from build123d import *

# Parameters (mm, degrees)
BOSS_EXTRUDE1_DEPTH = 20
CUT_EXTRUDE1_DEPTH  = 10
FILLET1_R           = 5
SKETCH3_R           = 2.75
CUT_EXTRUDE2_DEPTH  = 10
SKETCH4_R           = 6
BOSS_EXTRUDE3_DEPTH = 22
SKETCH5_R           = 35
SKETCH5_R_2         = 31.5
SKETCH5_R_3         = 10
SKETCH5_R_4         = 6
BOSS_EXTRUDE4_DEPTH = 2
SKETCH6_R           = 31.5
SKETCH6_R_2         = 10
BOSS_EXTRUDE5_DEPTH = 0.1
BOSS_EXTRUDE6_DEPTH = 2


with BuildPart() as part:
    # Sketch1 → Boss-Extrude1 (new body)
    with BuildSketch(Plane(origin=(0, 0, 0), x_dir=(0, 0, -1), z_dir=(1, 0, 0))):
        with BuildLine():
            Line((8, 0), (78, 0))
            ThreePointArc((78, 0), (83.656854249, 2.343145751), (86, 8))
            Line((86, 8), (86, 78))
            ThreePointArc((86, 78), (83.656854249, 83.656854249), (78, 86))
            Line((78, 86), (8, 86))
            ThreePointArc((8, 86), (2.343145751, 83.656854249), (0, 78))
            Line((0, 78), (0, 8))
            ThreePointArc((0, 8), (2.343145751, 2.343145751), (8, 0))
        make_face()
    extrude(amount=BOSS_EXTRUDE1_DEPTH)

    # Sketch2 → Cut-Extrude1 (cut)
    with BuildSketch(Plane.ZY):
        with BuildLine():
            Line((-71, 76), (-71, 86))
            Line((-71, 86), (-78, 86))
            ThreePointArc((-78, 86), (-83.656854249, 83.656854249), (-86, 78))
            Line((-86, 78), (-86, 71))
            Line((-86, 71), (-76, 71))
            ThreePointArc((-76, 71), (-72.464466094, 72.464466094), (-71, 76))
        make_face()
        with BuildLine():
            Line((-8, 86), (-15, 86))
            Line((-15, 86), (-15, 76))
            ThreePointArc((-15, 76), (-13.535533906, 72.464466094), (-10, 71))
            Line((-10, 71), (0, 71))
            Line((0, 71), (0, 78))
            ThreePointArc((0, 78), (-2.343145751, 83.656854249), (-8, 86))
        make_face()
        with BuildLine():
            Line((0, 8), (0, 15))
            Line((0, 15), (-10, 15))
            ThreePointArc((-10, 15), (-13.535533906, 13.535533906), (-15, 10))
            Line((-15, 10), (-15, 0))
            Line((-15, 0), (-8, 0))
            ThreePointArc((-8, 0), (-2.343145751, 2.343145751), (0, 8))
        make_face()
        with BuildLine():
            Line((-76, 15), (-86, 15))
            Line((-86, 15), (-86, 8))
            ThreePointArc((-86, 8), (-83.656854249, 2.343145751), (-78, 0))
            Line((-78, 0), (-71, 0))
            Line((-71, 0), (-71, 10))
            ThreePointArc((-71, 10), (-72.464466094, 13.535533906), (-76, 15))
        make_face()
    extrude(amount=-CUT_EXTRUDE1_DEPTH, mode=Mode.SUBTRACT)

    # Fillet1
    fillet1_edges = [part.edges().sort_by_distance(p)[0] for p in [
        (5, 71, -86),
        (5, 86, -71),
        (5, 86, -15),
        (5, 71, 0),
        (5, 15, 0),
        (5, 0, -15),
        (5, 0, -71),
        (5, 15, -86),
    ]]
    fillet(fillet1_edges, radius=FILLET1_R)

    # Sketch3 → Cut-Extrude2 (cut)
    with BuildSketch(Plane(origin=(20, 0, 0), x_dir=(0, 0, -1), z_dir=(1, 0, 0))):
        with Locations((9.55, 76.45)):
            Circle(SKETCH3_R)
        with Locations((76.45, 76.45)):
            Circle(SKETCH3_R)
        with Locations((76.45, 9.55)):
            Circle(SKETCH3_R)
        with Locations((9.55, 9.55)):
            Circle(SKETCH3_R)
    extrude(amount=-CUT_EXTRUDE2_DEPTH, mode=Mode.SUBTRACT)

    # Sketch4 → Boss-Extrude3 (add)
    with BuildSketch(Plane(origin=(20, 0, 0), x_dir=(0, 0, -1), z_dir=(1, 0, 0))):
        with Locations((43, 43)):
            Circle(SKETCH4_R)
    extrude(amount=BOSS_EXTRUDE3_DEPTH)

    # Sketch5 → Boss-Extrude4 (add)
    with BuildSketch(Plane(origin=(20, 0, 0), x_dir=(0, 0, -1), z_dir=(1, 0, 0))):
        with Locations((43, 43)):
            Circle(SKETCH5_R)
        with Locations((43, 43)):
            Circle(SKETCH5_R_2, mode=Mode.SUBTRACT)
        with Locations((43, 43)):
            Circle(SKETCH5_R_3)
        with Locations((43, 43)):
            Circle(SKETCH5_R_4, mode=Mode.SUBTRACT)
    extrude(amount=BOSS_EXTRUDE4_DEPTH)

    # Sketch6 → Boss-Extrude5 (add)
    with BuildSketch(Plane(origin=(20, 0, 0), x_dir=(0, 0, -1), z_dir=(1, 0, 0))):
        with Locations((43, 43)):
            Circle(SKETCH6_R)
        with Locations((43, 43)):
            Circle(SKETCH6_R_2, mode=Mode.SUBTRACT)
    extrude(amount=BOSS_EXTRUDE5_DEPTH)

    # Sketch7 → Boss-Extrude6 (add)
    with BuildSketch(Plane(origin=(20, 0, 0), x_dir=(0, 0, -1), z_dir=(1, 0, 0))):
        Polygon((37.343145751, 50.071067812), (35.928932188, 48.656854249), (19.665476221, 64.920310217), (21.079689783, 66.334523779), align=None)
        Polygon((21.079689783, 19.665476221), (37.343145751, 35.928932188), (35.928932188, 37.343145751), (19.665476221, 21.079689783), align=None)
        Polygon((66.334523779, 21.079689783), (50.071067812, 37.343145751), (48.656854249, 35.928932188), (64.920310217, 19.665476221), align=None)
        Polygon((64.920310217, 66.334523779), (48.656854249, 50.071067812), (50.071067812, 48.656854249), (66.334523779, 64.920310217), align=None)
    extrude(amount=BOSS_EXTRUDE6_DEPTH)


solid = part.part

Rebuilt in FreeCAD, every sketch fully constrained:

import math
import FreeCAD as App
import Part
import Sketcher
Q = App.Units.Quantity


def edges_at(feature, points):
    """Names of the edges that pass closest to the given points."""
    edges = feature.Shape.Edges
    near = lambda p: min(range(len(edges)), key=lambda i: edges[i].distToShape(Part.Vertex(*p))[0])
    return sorted({f"Edge{near(p) + 1}" for p in points})


def add_polygon(sketch, points):
    """Adds a closed chain of lines whose ends are joined by coincident constraints."""
    first, n = sketch.GeometryCount, len(points)
    for a, b in zip(points, points[1:] + points[:1]):
        sketch.addGeometry(Part.LineSegment(App.Vector(*a, 0), App.Vector(*b, 0)), False)
    for i in range(n):
        sketch.addConstraint(Sketcher.Constraint("Coincident", first + i, 2, first + (i + 1) % n, 1))

doc = App.newDocument("Part")
body = doc.addObject("PartDesign::Body", "Body")

# Sketch on YZ plane
sketch1 = body.newObject("Sketcher::SketchObject", "Sketch")
sketch1.AttachmentSupport = (doc.getObject("YZ_Plane"), [""])
sketch1.MapMode = "FlatFace"
sketch1.addGeometry(Part.LineSegment(App.Vector(0, -8, 0), App.Vector(0, -78, 0)), False)
sketch1.addGeometry(Part.ArcOfCircle(Part.Circle(App.Vector(8, -78, 0), App.Vector(0, 0, 1), 8), math.radians(-180), math.radians(-90)), False)
sketch1.addGeometry(Part.LineSegment(App.Vector(8, -86, 0), App.Vector(78, -86, 0)), False)
sketch1.addGeometry(Part.ArcOfCircle(Part.Circle(App.Vector(78, -78, 0), App.Vector(0, 0, 1), 8), math.radians(-90), math.radians(0)), False)
sketch1.addGeometry(Part.LineSegment(App.Vector(86, -78, 0), App.Vector(86, -8, 0)), False)
sketch1.addGeometry(Part.ArcOfCircle(Part.Circle(App.Vector(78, -8, 0), App.Vector(0, 0, 1), 8), math.radians(0), math.radians(90)), False)
sketch1.addGeometry(Part.LineSegment(App.Vector(78, 0, 0), App.Vector(8, 0, 0)), False)
sketch1.addGeometry(Part.ArcOfCircle(Part.Circle(App.Vector(8, -8, 0), App.Vector(0, 0, 1), 8), math.radians(90), math.radians(180)), False)
sketch1.addConstraint(Sketcher.Constraint("Tangent", 0, 2, 1, 1))
sketch1.addConstraint(Sketcher.Constraint("Tangent", 1, 2, 2, 1))
sketch1.addConstraint(Sketcher.Constraint("Tangent", 2, 2, 3, 1))
sketch1.addConstraint(Sketcher.Constraint("Tangent", 3, 2, 4, 1))
sketch1.addConstraint(Sketcher.Constraint("Tangent", 4, 2, 5, 1))
sketch1.addConstraint(Sketcher.Constraint("Tangent", 5, 2, 6, 1))
sketch1.addConstraint(Sketcher.Constraint("Tangent", 6, 2, 7, 1))
sketch1.addConstraint(Sketcher.Constraint("Tangent", 7, 2, 0, 1))
sketch1.addConstraint(Sketcher.Constraint("Vertical", 0))
sketch1.addConstraint(Sketcher.Constraint("Horizontal", 2))
sketch1.addConstraint(Sketcher.Constraint("Vertical", 4))
sketch1.addConstraint(Sketcher.Constraint("Horizontal", 6))
sketch1.addConstraint(Sketcher.Constraint("Equal", 1, 3))
sketch1.addConstraint(Sketcher.Constraint("Equal", 3, 5))
sketch1.addConstraint(Sketcher.Constraint("Equal", 5, 7))
sketch1.addConstraint(Sketcher.Constraint("PointOnObject", 0, 2, -2))
sketch1.addConstraint(Sketcher.Constraint("PointOnObject", 5, 2, -1))
sketch1.addConstraint(Sketcher.Constraint("Equal", 6, 0))
sketch1.addConstraint(Sketcher.Constraint("Radius", 1, Q("8 mm")))
sketch1.addConstraint(Sketcher.Constraint("DistanceX", 2, 1, 2, 2, Q("70 mm")))
pad1 = body.newObject("PartDesign::Pad", "Pad")
pad1.Profile = sketch1
pad1.Length = 20

# Sketch on YZ plane
sketch2 = body.newObject("Sketcher::SketchObject", "Sketch001")
sketch2.AttachmentSupport = (doc.getObject("YZ_Plane"), [""])
sketch2.MapMode = "FlatFace"
sketch2.addGeometry(Part.LineSegment(App.Vector(76, -71, 0), App.Vector(86, -71, 0)), False)
sketch2.addGeometry(Part.LineSegment(App.Vector(86, -71, 0), App.Vector(86, -78, 0)), False)
sketch2.addGeometry(Part.ArcOfCircle(Part.Circle(App.Vector(78, -78, 0), App.Vector(0, 0, 1), 8), math.radians(-90), math.radians(0)), False)
sketch2.addGeometry(Part.LineSegment(App.Vector(78, -86, 0), App.Vector(71, -86, 0)), False)
sketch2.addGeometry(Part.LineSegment(App.Vector(71, -86, 0), App.Vector(71, -76, 0)), False)
sketch2.addGeometry(Part.ArcOfCircle(Part.Circle(App.Vector(76, -76, 0), App.Vector(0, 0, 1), 5), math.radians(90), math.radians(180)), False)
sketch2.addGeometry(Part.LineSegment(App.Vector(86, -8, 0), App.Vector(86, -15, 0)), False)
sketch2.addGeometry(Part.LineSegment(App.Vector(86, -15, 0), App.Vector(76, -15, 0)), False)
sketch2.addGeometry(Part.ArcOfCircle(Part.Circle(App.Vector(76, -10, 0), App.Vector(0, 0, 1), 5), math.radians(180), math.radians(270)), False)
sketch2.addGeometry(Part.LineSegment(App.Vector(71, -10, 0), App.Vector(71, 0, 0)), False)
sketch2.addGeometry(Part.LineSegment(App.Vector(71, 0, 0), App.Vector(78, 0, 0)), False)
sketch2.addGeometry(Part.ArcOfCircle(Part.Circle(App.Vector(78, -8, 0), App.Vector(0, 0, 1), 8), math.radians(0), math.radians(90)), False)
sketch2.addGeometry(Part.LineSegment(App.Vector(8, 0, 0), App.Vector(15, 0, 0)), False)
sketch2.addGeometry(Part.LineSegment(App.Vector(15, 0, 0), App.Vector(15, -10, 0)), False)
sketch2.addGeometry(Part.ArcOfCircle(Part.Circle(App.Vector(10, -10, 0), App.Vector(0, 0, 1), 5), math.radians(-90), math.radians(0)), False)
sketch2.addGeometry(Part.LineSegment(App.Vector(10, -15, 0), App.Vector(0, -15, 0)), False)
sketch2.addGeometry(Part.LineSegment(App.Vector(0, -15, 0), App.Vector(0, -8, 0)), False)
sketch2.addGeometry(Part.ArcOfCircle(Part.Circle(App.Vector(8, -8, 0), App.Vector(0, 0, 1), 8), math.radians(90), math.radians(180)), False)
sketch2.addGeometry(Part.LineSegment(App.Vector(15, -76, 0), App.Vector(15, -86, 0)), False)
sketch2.addGeometry(Part.LineSegment(App.Vector(15, -86, 0), App.Vector(8, -86, 0)), False)
sketch2.addGeometry(Part.ArcOfCircle(Part.Circle(App.Vector(8, -78, 0), App.Vector(0, 0, 1), 8), math.radians(-180), math.radians(-90)), False)
sketch2.addGeometry(Part.LineSegment(App.Vector(0, -78, 0), App.Vector(0, -71, 0)), False)
sketch2.addGeometry(Part.LineSegment(App.Vector(0, -71, 0), App.Vector(10, -71, 0)), False)
sketch2.addGeometry(Part.ArcOfCircle(Part.Circle(App.Vector(10, -76, 0), App.Vector(0, 0, 1), 5), math.radians(0), math.radians(90)), False)
sketch2.addConstraint(Sketcher.Constraint("Coincident", 0, 2, 1, 1))
sketch2.addConstraint(Sketcher.Constraint("Tangent", 1, 2, 2, 2))
sketch2.addConstraint(Sketcher.Constraint("Tangent", 2, 1, 3, 1))
sketch2.addConstraint(Sketcher.Constraint("Coincident", 3, 2, 4, 1))
sketch2.addConstraint(Sketcher.Constraint("Tangent", 4, 2, 5, 2))
sketch2.addConstraint(Sketcher.Constraint("Tangent", 5, 1, 0, 1))
sketch2.addConstraint(Sketcher.Constraint("Coincident", 6, 2, 7, 1))
sketch2.addConstraint(Sketcher.Constraint("Tangent", 7, 2, 8, 2))
sketch2.addConstraint(Sketcher.Constraint("Tangent", 8, 1, 9, 1))
sketch2.addConstraint(Sketcher.Constraint("Coincident", 9, 2, 10, 1))
sketch2.addConstraint(Sketcher.Constraint("Tangent", 10, 2, 11, 2))
sketch2.addConstraint(Sketcher.Constraint("Tangent", 11, 1, 6, 1))
sketch2.addConstraint(Sketcher.Constraint("Coincident", 12, 2, 13, 1))
sketch2.addConstraint(Sketcher.Constraint("Tangent", 13, 2, 14, 2))
sketch2.addConstraint(Sketcher.Constraint("Tangent", 14, 1, 15, 1))
sketch2.addConstraint(Sketcher.Constraint("Coincident", 15, 2, 16, 1))
sketch2.addConstraint(Sketcher.Constraint("Tangent", 16, 2, 17, 2))
sketch2.addConstraint(Sketcher.Constraint("Tangent", 17, 1, 12, 1))
sketch2.addConstraint(Sketcher.Constraint("Coincident", 18, 2, 19, 1))
sketch2.addConstraint(Sketcher.Constraint("Tangent", 19, 2, 20, 2))
sketch2.addConstraint(Sketcher.Constraint("Tangent", 20, 1, 21, 1))
sketch2.addConstraint(Sketcher.Constraint("Coincident", 21, 2, 22, 1))
sketch2.addConstraint(Sketcher.Constraint("Tangent", 22, 2, 23, 2))
sketch2.addConstraint(Sketcher.Constraint("Tangent", 23, 1, 18, 1))
sketch2.addConstraint(Sketcher.Constraint("Horizontal", 0))
sketch2.addConstraint(Sketcher.Constraint("Vertical", 1))
sketch2.addConstraint(Sketcher.Constraint("Horizontal", 3))
sketch2.addConstraint(Sketcher.Constraint("Vertical", 4))
sketch2.addConstraint(Sketcher.Constraint("Vertical", 6))
sketch2.addConstraint(Sketcher.Constraint("Horizontal", 7))
sketch2.addConstraint(Sketcher.Constraint("Vertical", 9))
sketch2.addConstraint(Sketcher.Constraint("Horizontal", 10))
sketch2.addConstraint(Sketcher.Constraint("Horizontal", 12))
sketch2.addConstraint(Sketcher.Constraint("Vertical", 13))
sketch2.addConstraint(Sketcher.Constraint("Horizontal", 15))
sketch2.addConstraint(Sketcher.Constraint("Vertical", 16))
sketch2.addConstraint(Sketcher.Constraint("Vertical", 18))
sketch2.addConstraint(Sketcher.Constraint("Horizontal", 19))
sketch2.addConstraint(Sketcher.Constraint("Vertical", 21))
sketch2.addConstraint(Sketcher.Constraint("Horizontal", 22))
sketch2.addConstraint(Sketcher.Constraint("Equal", 5, 8))
sketch2.addConstraint(Sketcher.Constraint("Equal", 2, 11))
sketch2.addConstraint(Sketcher.Constraint("Equal", 8, 14))
sketch2.addConstraint(Sketcher.Constraint("Equal", 11, 17))
sketch2.addConstraint(Sketcher.Constraint("Equal", 17, 20))
sketch2.addConstraint(Sketcher.Constraint("Equal", 14, 23))
sketch2.addConstraint(Sketcher.Constraint("PointOnObject", 9, 2, -1))
sketch2.addConstraint(Sketcher.Constraint("PointOnObject", 12, 2, -1))
sketch2.addConstraint(Sketcher.Constraint("PointOnObject", 15, 2, -2))
sketch2.addConstraint(Sketcher.Constraint("PointOnObject", 20, 1, -2))
sketch2.addConstraint(Sketcher.Constraint("Horizontal", 8, 3, 14, 3))
sketch2.addConstraint(Sketcher.Constraint("Horizontal", 2, 3, 20, 3))
sketch2.addConstraint(Sketcher.Constraint("Horizontal", 5, 3, 23, 3))
sketch2.addConstraint(Sketcher.Constraint("Vertical", 5, 3, 8, 3))
sketch2.addConstraint(Sketcher.Constraint("Vertical", 2, 3, 11, 3))
sketch2.addConstraint(Sketcher.Constraint("Vertical", 14, 3, 23, 3))
sketch2.addConstraint(Sketcher.Constraint("Equal", 10, 12))
sketch2.addConstraint(Sketcher.Constraint("Equal", 19, 1))
sketch2.addConstraint(Sketcher.Constraint("Equal", 1, 6))
sketch2.addConstraint(Sketcher.Constraint("Radius", 2, Q("8 mm")))
sketch2.addConstraint(Sketcher.Constraint("Radius", 5, Q("5 mm")))
sketch2.addConstraint(Sketcher.Constraint("DistanceX", 0, 1, 0, 2, Q("10 mm")))
sketch2.addConstraint(Sketcher.Constraint("DistanceX", -1, 1, 2, 3, Q("78 mm")))
sketch2.addConstraint(Sketcher.Constraint("DistanceY", 2, 3, -1, 1, Q("78 mm")))
pocket1 = body.newObject("PartDesign::Pocket", "Pocket")
pocket1.Profile = sketch2
pocket1.Length = 10
pocket1.Reversed = True
doc.recompute()

fillet = body.newObject("PartDesign::Fillet", "Fillet")
fillet.Base = (pocket1, edges_at(pocket1, [
    (5, 71, -86),
    (5, 86, -71),
    (5, 86, -15),
    (5, 71, 0),
    (5, 15, 0),
    (5, 0, -15),
    (5, 0, -71),
    (5, 15, -86),
]))
fillet.Radius = 5

# Sketch on YZ plane
sketch3 = body.newObject("Sketcher::SketchObject", "Sketch002")
sketch3.AttachmentSupport = (doc.getObject("YZ_Plane"), [""])
sketch3.MapMode = "FlatFace"
sketch3.AttachmentOffset = App.Placement(App.Vector(0, 0, 20), App.Rotation())
sketch3.addGeometry(Part.Circle(App.Vector(76.5, -9.6, 0), App.Vector(0, 0, 1), 2.8), False)
sketch3.addGeometry(Part.Circle(App.Vector(76.5, -76.5, 0), App.Vector(0, 0, 1), 2.8), False)
sketch3.addGeometry(Part.Circle(App.Vector(9.6, -76.5, 0), App.Vector(0, 0, 1), 2.8), False)
sketch3.addGeometry(Part.Circle(App.Vector(9.6, -9.6, 0), App.Vector(0, 0, 1), 2.8), False)
sketch3.addConstraint(Sketcher.Constraint("Equal", 0, 1))
sketch3.addConstraint(Sketcher.Constraint("Equal", 1, 2))
sketch3.addConstraint(Sketcher.Constraint("Equal", 2, 3))
sketch3.addConstraint(Sketcher.Constraint("Horizontal", 1, 3, 2, 3))
sketch3.addConstraint(Sketcher.Constraint("Horizontal", 0, 3, 3, 3))
sketch3.addConstraint(Sketcher.Constraint("Vertical", 0, 3, 1, 3))
sketch3.addConstraint(Sketcher.Constraint("Vertical", 2, 3, 3, 3))
sketch3.addConstraint(Sketcher.Constraint("Diameter", 0, Q("5.5 mm")))
sketch3.addConstraint(Sketcher.Constraint("DistanceY", 1, 3, 0, 3, Q("66.9 mm")))
sketch3.addConstraint(Sketcher.Constraint("DistanceX", 2, 3, 1, 3, Q("66.9 mm")))
sketch3.addConstraint(Sketcher.Constraint("DistanceX", -1, 1, 0, 3, Q("76.45 mm")))
sketch3.addConstraint(Sketcher.Constraint("DistanceY", 0, 3, -1, 1, Q("9.55 mm")))
pocket2 = body.newObject("PartDesign::Pocket", "Pocket001")
pocket2.Profile = sketch3
pocket2.Length = 10

# Sketch on YZ plane
sketch4 = body.newObject("Sketcher::SketchObject", "Sketch003")
sketch4.AttachmentSupport = (doc.getObject("YZ_Plane"), [""])
sketch4.MapMode = "FlatFace"
sketch4.AttachmentOffset = App.Placement(App.Vector(0, 0, 20), App.Rotation())
sketch4.addGeometry(Part.Circle(App.Vector(43, -43, 0), App.Vector(0, 0, 1), 6), False)
sketch4.addConstraint(Sketcher.Constraint("Diameter", 0, Q("12 mm")))
sketch4.addConstraint(Sketcher.Constraint("DistanceX", -1, 1, 0, 3, Q("43 mm")))
sketch4.addConstraint(Sketcher.Constraint("DistanceY", 0, 3, -1, 1, Q("43 mm")))
pad2 = body.newObject("PartDesign::Pad", "Pad001")
pad2.Profile = sketch4
pad2.Length = 22

# Sketch on YZ plane
sketch5 = body.newObject("Sketcher::SketchObject", "Sketch004")
sketch5.AttachmentSupport = (doc.getObject("YZ_Plane"), [""])
sketch5.MapMode = "FlatFace"
sketch5.AttachmentOffset = App.Placement(App.Vector(0, 0, 20), App.Rotation())
sketch5.addGeometry(Part.Circle(App.Vector(43, -43, 0), App.Vector(0, 0, 1), 35), False)
sketch5.addGeometry(Part.Circle(App.Vector(43, -43, 0), App.Vector(0, 0, 1), 32), False)
sketch5.addGeometry(Part.Circle(App.Vector(43, -43, 0), App.Vector(0, 0, 1), 10), False)
sketch5.addGeometry(Part.Circle(App.Vector(43, -43, 0), App.Vector(0, 0, 1), 6), False)
sketch5.addConstraint(Sketcher.Constraint("Coincident", 1, 3, 0, 3))
sketch5.addConstraint(Sketcher.Constraint("Coincident", 2, 3, 0, 3))
sketch5.addConstraint(Sketcher.Constraint("Coincident", 3, 3, 0, 3))
sketch5.addConstraint(Sketcher.Constraint("Diameter", 0, Q("70 mm")))
sketch5.addConstraint(Sketcher.Constraint("Diameter", 1, Q("63 mm")))
sketch5.addConstraint(Sketcher.Constraint("Diameter", 2, Q("20 mm")))
sketch5.addConstraint(Sketcher.Constraint("Diameter", 3, Q("12 mm")))
sketch5.addConstraint(Sketcher.Constraint("DistanceX", -1, 1, 0, 3, Q("43 mm")))
sketch5.addConstraint(Sketcher.Constraint("DistanceY", 0, 3, -1, 1, Q("43 mm")))
pad3 = body.newObject("PartDesign::Pad", "Pad002")
pad3.Profile = sketch5
pad3.Length = 2

# Sketch on YZ plane
sketch6 = body.newObject("Sketcher::SketchObject", "Sketch005")
sketch6.AttachmentSupport = (doc.getObject("YZ_Plane"), [""])
sketch6.MapMode = "FlatFace"
sketch6.AttachmentOffset = App.Placement(App.Vector(0, 0, 20), App.Rotation())
sketch6.addGeometry(Part.Circle(App.Vector(43, -43, 0), App.Vector(0, 0, 1), 32), False)
sketch6.addGeometry(Part.Circle(App.Vector(43, -43, 0), App.Vector(0, 0, 1), 10), False)
sketch6.addConstraint(Sketcher.Constraint("Coincident", 1, 3, 0, 3))
sketch6.addConstraint(Sketcher.Constraint("Diameter", 0, Q("63 mm")))
sketch6.addConstraint(Sketcher.Constraint("Diameter", 1, Q("20 mm")))
sketch6.addConstraint(Sketcher.Constraint("DistanceX", -1, 1, 0, 3, Q("43 mm")))
sketch6.addConstraint(Sketcher.Constraint("DistanceY", 0, 3, -1, 1, Q("43 mm")))
pad4 = body.newObject("PartDesign::Pad", "Pad003")
pad4.Profile = sketch6
pad4.Length = 0.1

# Sketch on YZ plane
sketch7 = body.newObject("Sketcher::SketchObject", "Sketch006")
sketch7.AttachmentSupport = (doc.getObject("YZ_Plane"), [""])
sketch7.MapMode = "FlatFace"
sketch7.AttachmentOffset = App.Placement(App.Vector(0, 0, 20), App.Rotation())
add_polygon(sketch7, [(48.7, -35.9), (50.1, -37.3), (66.3, -21.1), (64.9, -19.7)])  # lines 0-3
add_polygon(sketch7, [(19.7, -21.1), (35.9, -37.3), (37.3, -35.9), (21.1, -19.7)])  # lines 4-7
add_polygon(sketch7, [(21.1, -66.3), (37.3, -50.1), (35.9, -48.7), (19.7, -64.9)])  # lines 8-11
add_polygon(sketch7, [(66.3, -64.9), (50.1, -48.7), (48.7, -50.1), (64.9, -66.3)])  # lines 12-15
sketch7.addConstraint(Sketcher.Constraint("Perpendicular", 0, 1))
sketch7.addConstraint(Sketcher.Constraint("Perpendicular", 1, 2))
sketch7.addConstraint(Sketcher.Constraint("Perpendicular", 2, 3))
sketch7.addConstraint(Sketcher.Constraint("Perpendicular", 3, 4))
sketch7.addConstraint(Sketcher.Constraint("Perpendicular", 4, 5))
sketch7.addConstraint(Sketcher.Constraint("Perpendicular", 5, 6))
sketch7.addConstraint(Sketcher.Constraint("Perpendicular", 6, 7))
sketch7.addConstraint(Sketcher.Constraint("Parallel", 7, 8))
sketch7.addConstraint(Sketcher.Constraint("Perpendicular", 8, 9))
sketch7.addConstraint(Sketcher.Constraint("Perpendicular", 9, 10))
sketch7.addConstraint(Sketcher.Constraint("Perpendicular", 10, 11))
sketch7.addConstraint(Sketcher.Constraint("Parallel", 11, 12))
sketch7.addConstraint(Sketcher.Constraint("Perpendicular", 12, 13))
sketch7.addConstraint(Sketcher.Constraint("Perpendicular", 13, 14))
sketch7.addConstraint(Sketcher.Constraint("Perpendicular", 14, 15))
sketch7.addConstraint(Sketcher.Constraint("Horizontal", 0, 2, 4, 2))
sketch7.addConstraint(Sketcher.Constraint("Horizontal", 3, 2, 5, 2))
sketch7.addConstraint(Sketcher.Constraint("Horizontal", 2, 2, 6, 2))
sketch7.addConstraint(Sketcher.Constraint("Horizontal", 9, 2, 12, 2))
sketch7.addConstraint(Sketcher.Constraint("Horizontal", 8, 2, 13, 2))
sketch7.addConstraint(Sketcher.Constraint("Horizontal", 11, 2, 14, 2))
sketch7.addConstraint(Sketcher.Constraint("Vertical", 5, 2, 8, 2))
sketch7.addConstraint(Sketcher.Constraint("Vertical", 4, 2, 9, 2))
sketch7.addConstraint(Sketcher.Constraint("Vertical", 7, 2, 10, 2))
sketch7.addConstraint(Sketcher.Constraint("Vertical", 0, 2, 12, 2))
sketch7.addConstraint(Sketcher.Constraint("Vertical", 3, 2, 13, 2))
sketch7.addConstraint(Sketcher.Constraint("Distance", 0, Q("2 mm")))
sketch7.addConstraint(Sketcher.Constraint("Distance", 1, Q("23 mm")))
sketch7.addConstraint(Sketcher.Constraint("DistanceY", 1, 2, -1, 1, Q("21.07969 mm")))
sketch7.addConstraint(Sketcher.Constraint("DistanceX", -1, 1, 2, 2, Q("64.92031 mm")))
sketch7.addConstraint(Sketcher.Constraint("DistanceX", -1, 1, 6, 2, Q("21.07969 mm")))
sketch7.addConstraint(Sketcher.Constraint("DistanceY", 10, 2, -1, 1, Q("64.92031 mm")))
pad5 = body.newObject("PartDesign::Pad", "Pad004")
pad5.Profile = sketch7
pad5.Length = 2

doc.recompute()
